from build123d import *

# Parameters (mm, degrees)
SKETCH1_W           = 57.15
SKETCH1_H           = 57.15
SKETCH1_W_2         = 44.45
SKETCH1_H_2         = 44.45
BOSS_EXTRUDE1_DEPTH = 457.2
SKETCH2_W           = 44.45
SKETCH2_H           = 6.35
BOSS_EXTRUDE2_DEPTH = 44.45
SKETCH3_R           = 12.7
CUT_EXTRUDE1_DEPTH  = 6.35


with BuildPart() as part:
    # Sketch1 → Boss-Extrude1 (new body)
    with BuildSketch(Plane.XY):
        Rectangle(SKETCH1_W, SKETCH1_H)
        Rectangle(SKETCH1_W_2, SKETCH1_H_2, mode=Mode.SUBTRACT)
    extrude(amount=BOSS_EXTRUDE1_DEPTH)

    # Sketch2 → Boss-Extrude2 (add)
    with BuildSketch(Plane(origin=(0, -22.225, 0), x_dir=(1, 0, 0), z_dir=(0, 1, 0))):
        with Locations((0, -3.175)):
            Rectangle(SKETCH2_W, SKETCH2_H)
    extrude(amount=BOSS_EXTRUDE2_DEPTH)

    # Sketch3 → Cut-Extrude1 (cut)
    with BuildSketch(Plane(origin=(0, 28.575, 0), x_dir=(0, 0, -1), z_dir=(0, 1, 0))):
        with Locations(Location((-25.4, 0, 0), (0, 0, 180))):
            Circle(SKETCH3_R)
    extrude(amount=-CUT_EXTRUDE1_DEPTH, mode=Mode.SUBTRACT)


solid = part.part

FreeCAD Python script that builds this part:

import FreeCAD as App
import Part
import Sketcher

V = App.Vector
Q = App.Units.Quantity

doc = App.newDocument("Part")
params = doc.addObject("Spreadsheet::Sheet", "Params")
for row, (alias, value) in enumerate([
    ("sketch1_width", "2.25 in"),
    ("pad1_length", "18 in"),
    ("sketch2_width", "1.75 in"),
    ("sketch2_height", "0.25 in"),
    ("pad2_length", "1.75 in"),
    ("sketch3_diameter", "1 in"),
    ("pocket1_length", "0.25 in"),
], start=1):
    params.set(f"A{row}", alias)
    params.set(f"B{row}", "=" + value)
    params.setAlias(f"B{row}", alias)

body = doc.addObject("PartDesign::Body", "Body")

sketch1 = doc.addObject("Sketcher::SketchObject", "Sketch")
body.addObject(sketch1)
sketch1.AttachmentSupport = (doc.XY_Plane, [""])
sketch1.MapMode = "FlatFace"
sketch1.addGeometry(Part.LineSegment(V(-29, 29, 0), V(-29, -29, 0)), False)
sketch1.addGeometry(Part.LineSegment(V(-29, -29, 0), V(29, -29, 0)), False)
sketch1.addGeometry(Part.LineSegment(V(29, -29, 0), V(29, 29, 0)), False)
sketch1.addGeometry(Part.LineSegment(V(29, 29, 0), V(-29, 29, 0)), False)
sketch1.addGeometry(Part.LineSegment(V(22, -22, 0), V(-22, -22, 0)), False)
sketch1.addGeometry(Part.LineSegment(V(-22, -22, 0), V(-22, 22, 0)), False)
sketch1.addGeometry(Part.LineSegment(V(-22, 22, 0), V(22, 22, 0)), False)
sketch1.addGeometry(Part.LineSegment(V(22, 22, 0), V(22, -22, 0)), False)
sketch1.addConstraint(Sketcher.Constraint("Coincident", 0, 2, 1, 1))
sketch1.addConstraint(Sketcher.Constraint("Coincident", 1, 2, 2, 1))
sketch1.addConstraint(Sketcher.Constraint("Coincident", 2, 2, 3, 1))
sketch1.addConstraint(Sketcher.Constraint("Coincident", 3, 2, 0, 1))
sketch1.addConstraint(Sketcher.Constraint("Coincident", 4, 2, 5, 1))
sketch1.addConstraint(Sketcher.Constraint("Coincident", 5, 2, 6, 1))
sketch1.addConstraint(Sketcher.Constraint("Coincident", 6, 2, 7, 1))
sketch1.addConstraint(Sketcher.Constraint("Coincident", 7, 2, 4, 1))
sketch1.addConstraint(Sketcher.Constraint("Vertical", 0))
sketch1.addConstraint(Sketcher.Constraint("Horizontal", 1))
sketch1.addConstraint(Sketcher.Constraint("Vertical", 2))
sketch1.addConstraint(Sketcher.Constraint("Horizontal", 3))
sketch1.addConstraint(Sketcher.Constraint("Horizontal", 4))
sketch1.addConstraint(Sketcher.Constraint("Vertical", 5))
sketch1.addConstraint(Sketcher.Constraint("Horizontal", 6))
sketch1.addConstraint(Sketcher.Constraint("Vertical", 7))
sketch1.addConstraint(Sketcher.Constraint("Symmetric", 0, 2, 2, 2, -1, 1))
sketch1.addConstraint(Sketcher.Constraint("Symmetric", 4, 2, 6, 2, -1, 1))
sketch1.addConstraint(Sketcher.Constraint("Equal", 3, 0))
sketch1.addConstraint(Sketcher.Constraint("Equal", 6, 5))
sketch1.addConstraint(Sketcher.Constraint("DistanceX", 4, 2, 1, 2, Q("2 in")))
sketch1.addConstraint(Sketcher.Constraint("DistanceX", 1, 1, 1, 2, Q("2.25 in")))
sketch1.setExpression("Constraints[21]", "Params.sketch1_width")
pad1 = doc.addObject("PartDesign::Pad", "Pad")
body.addObject(pad1)
pad1.Profile = sketch1
pad1.setExpression("Length", "Params.pad1_length")

sketch2 = doc.addObject("Sketcher::SketchObject", "Sketch001")
body.addObject(sketch2)
sketch2.AttachmentSupport = (doc.XZ_Plane, [""])
sketch2.MapMode = "FlatFace"
sketch2.AttachmentOffset = App.Placement(V(0, 0, 0.875 * 25.4), App.Rotation())
sketch2.addGeometry(Part.LineSegment(V(-22, 0, 0), V(-22, 6, 0)), False)
sketch2.addGeometry(Part.LineSegment(V(-22, 6, 0), V(22, 6, 0)), False)
sketch2.addGeometry(Part.LineSegment(V(22, 6, 0), V(22, 0, 0)), False)
sketch2.addGeometry(Part.LineSegment(V(22, 0, 0), V(-22, 0, 0)), False)
sketch2.addConstraint(Sketcher.Constraint("Coincident", 0, 2, 1, 1))
sketch2.addConstraint(Sketcher.Constraint("Coincident", 1, 2, 2, 1))
sketch2.addConstraint(Sketcher.Constraint("Coincident", 2, 2, 3, 1))
sketch2.addConstraint(Sketcher.Constraint("Coincident", 3, 2, 0, 1))
sketch2.addConstraint(Sketcher.Constraint("Vertical", 0))
sketch2.addConstraint(Sketcher.Constraint("Horizontal", 1))
sketch2.addConstraint(Sketcher.Constraint("Vertical", 2))
sketch2.addConstraint(Sketcher.Constraint("Horizontal", 3))
sketch2.addConstraint(Sketcher.Constraint("Symmetric", 2, 2, 3, 2, -1, 1))
sketch2.addConstraint(Sketcher.Constraint("DistanceX", 1, 1, 1, 2, Q("1.75 in")))
sketch2.addConstraint(Sketcher.Constraint("DistanceY", 0, 1, 0, 2, Q("0.25 in")))
sketch2.setExpression("Constraints[9]", "Params.sketch2_width")
sketch2.setExpression("Constraints[10]", "Params.sketch2_height")
pad2 = doc.addObject("PartDesign::Pad", "Pad001")
body.addObject(pad2)
pad2.Profile = sketch2
pad2.setExpression("Length", "Params.pad2_length")
pad2.Reversed = True

sketch3 = doc.addObject("Sketcher::SketchObject", "Sketch002")
body.addObject(sketch3)
sketch3.AttachmentSupport = (doc.XZ_Plane, [""])
sketch3.MapMode = "FlatFace"
sketch3.AttachmentOffset = App.Placement(V(0, 0, -1.125 * 25.4), App.Rotation())
sketch3.addGeometry(Part.Circle(V(0, 25, 0), V(0, 0, 1), 13), False)
sketch3.addConstraint(Sketcher.Constraint("PointOnObject", 0, 3, -2))
sketch3.addConstraint(Sketcher.Constraint("Diameter", 0, Q("1 in")))
sketch3.addConstraint(Sketcher.Constraint("DistanceY", -1, 1, 0, 3, Q("1 in")))
sketch3.setExpression("Constraints[1]", "Params.sketch3_diameter")
pocket1 = doc.addObject("PartDesign::Pocket", "Pocket")
body.addObject(pocket1)
pocket1.Profile = sketch3
pocket1.setExpression("Length", "Params.pocket1_length")
pocket1.Reversed = True

doc.recompute()
